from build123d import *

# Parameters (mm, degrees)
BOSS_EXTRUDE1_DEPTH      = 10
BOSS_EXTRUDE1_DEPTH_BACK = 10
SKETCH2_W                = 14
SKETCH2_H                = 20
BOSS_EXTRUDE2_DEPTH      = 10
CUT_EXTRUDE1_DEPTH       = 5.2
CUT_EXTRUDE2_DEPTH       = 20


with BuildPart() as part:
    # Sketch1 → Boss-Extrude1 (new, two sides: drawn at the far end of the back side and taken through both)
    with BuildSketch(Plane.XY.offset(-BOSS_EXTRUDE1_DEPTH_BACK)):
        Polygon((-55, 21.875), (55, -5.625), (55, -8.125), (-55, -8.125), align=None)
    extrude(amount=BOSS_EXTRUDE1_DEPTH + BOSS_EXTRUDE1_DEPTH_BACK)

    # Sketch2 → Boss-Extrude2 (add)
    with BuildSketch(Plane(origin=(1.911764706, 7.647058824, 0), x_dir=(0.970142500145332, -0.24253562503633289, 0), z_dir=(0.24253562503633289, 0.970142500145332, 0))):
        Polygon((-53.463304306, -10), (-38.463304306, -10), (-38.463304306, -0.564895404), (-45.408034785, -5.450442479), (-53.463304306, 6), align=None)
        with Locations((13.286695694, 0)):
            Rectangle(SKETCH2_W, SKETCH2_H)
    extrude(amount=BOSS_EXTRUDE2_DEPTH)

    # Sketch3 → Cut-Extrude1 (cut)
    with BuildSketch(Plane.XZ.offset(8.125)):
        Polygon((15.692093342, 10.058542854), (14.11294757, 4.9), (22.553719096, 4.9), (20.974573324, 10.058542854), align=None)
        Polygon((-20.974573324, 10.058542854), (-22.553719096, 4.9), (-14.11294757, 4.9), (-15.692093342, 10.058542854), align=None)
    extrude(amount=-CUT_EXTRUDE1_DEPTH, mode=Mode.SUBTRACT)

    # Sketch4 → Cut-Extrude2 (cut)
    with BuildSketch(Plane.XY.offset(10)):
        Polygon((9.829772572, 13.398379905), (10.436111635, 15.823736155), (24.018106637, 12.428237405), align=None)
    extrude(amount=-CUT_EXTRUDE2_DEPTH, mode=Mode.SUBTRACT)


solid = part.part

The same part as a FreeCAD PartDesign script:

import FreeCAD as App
import Part
import Sketcher

V = App.Vector
Q = App.Units.Quantity


def add_polygon(sketch, points):
    """Adds a closed chain of lines whose ends are joined by coincident constraints."""
    first, n = sketch.GeometryCount, len(points)
    for a, b in zip(points, points[1:] + points[:1]):
        sketch.addGeometry(Part.LineSegment(App.Vector(*a, 0), App.Vector(*b, 0)), False)
    for i in range(n):
        sketch.addConstraint(Sketcher.Constraint("Coincident", first + i, 2, first + (i + 1) % n, 1))

doc = App.newDocument("Part")
body = doc.addObject("PartDesign::Body", "Body")

sketch1 = body.newObject("Sketcher::SketchObject", "Sketch")
sketch1.AttachmentSupport = (doc.getObject("XY_Plane"), [""])
sketch1.MapMode = "FlatFace"
add_polygon(sketch1, [(55, -5.6), (-55, 21.9), (-55, -8.1), (55, -8.1)])
sketch1.addConstraint(Sketcher.Constraint("Vertical", 1))
sketch1.addConstraint(Sketcher.Constraint("Horizontal", 2))
sketch1.addConstraint(Sketcher.Constraint("Vertical", 3))
sketch1.addConstraint(Sketcher.Constraint("DistanceX", 2, 1, 2, 2, Q("110 mm")))
sketch1.addConstraint(Sketcher.Constraint("DistanceY", 1, 2, 1, 1, Q("30 mm")))
sketch1.addConstraint(Sketcher.Constraint("DistanceY", 3, 1, 3, 2, Q("2.5 mm")))
sketch1.addConstraint(Sketcher.Constraint("DistanceX", 0, 2, -1, 1, Q("55 mm")))
sketch1.addConstraint(Sketcher.Constraint("DistanceY", -1, 1, 0, 2, Q("21.875 mm")))
pad1 = body.newObject("PartDesign::Pad", "Pad")
pad1.Profile = sketch1
pad1.Type = "TwoLengths"
pad1.Length = 10
pad1.Length2 = 10

sketch2 = body.newObject("Sketcher::SketchObject", "Sketch001")
sketch2.Placement = App.Placement(V(1.911765, 7.647059, 0), App.Rotation(V(0.9701425, -0.242535625, 0), V(0, 0, -1), V(0.242535625, 0.9701425, 0), "ZXY"))
add_polygon(sketch2, [(-53, -10), (-38, -10), (-38, -1), (-45, -5), (-53, 6)])
add_polygon(sketch2, [(6, 10), (6, -10), (20, -10), (20, 10)])
sketch2.addConstraint(Sketcher.Constraint("Horizontal", 0))
sketch2.addConstraint(Sketcher.Constraint("Vertical", 1))
sketch2.addConstraint(Sketcher.Constraint("Vertical", 4))
sketch2.addConstraint(Sketcher.Constraint("Vertical", 5))
sketch2.addConstraint(Sketcher.Constraint("Horizontal", 6))
sketch2.addConstraint(Sketcher.Constraint("Vertical", 7))
sketch2.addConstraint(Sketcher.Constraint("Horizontal", 8))
sketch2.addConstraint(Sketcher.Constraint("Perpendicular", 2, 3))
sketch2.addConstraint(Sketcher.Constraint("Horizontal", 4, 2, 5, 2))
sketch2.addConstraint(Sketcher.Constraint("DistanceX", 0, 1, 0, 2, Q("15 mm")))
sketch2.addConstraint(Sketcher.Constraint("DistanceX", 6, 1, 6, 2, Q("14 mm")))
sketch2.addConstraint(Sketcher.Constraint("DistanceY", 4, 2, 4, 1, Q("16 mm")))
sketch2.addConstraint(Sketcher.Constraint("DistanceY", 5, 2, 5, 1, Q("20 mm")))
sketch2.addConstraint(Sketcher.Constraint("Distance", 3, Q("14 mm")))
sketch2.addConstraint(Sketcher.Constraint("DistanceY", 0, 2, -1, 1, Q("10 mm")))
sketch2.addConstraint(Sketcher.Constraint("DistanceX", 0, 2, 5, 2, Q("44.75 mm")))
sketch2.addConstraint(Sketcher.Constraint("DistanceY", 1, 1, 1, 2, Q("9.435105 mm")))
sketch2.addConstraint(Sketcher.Constraint("DistanceX", 0, 2, -1, 1, Q("38.463304 mm")))
pad2 = body.newObject("PartDesign::Pad", "Pad001")
pad2.Profile = sketch2
pad2.Length = 10

sketch3 = body.newObject("Sketcher::SketchObject", "Sketch002")
sketch3.AttachmentSupport = (doc.getObject("XZ_Plane"), [""])
sketch3.MapMode = "FlatFace"
sketch3.AttachmentOffset = App.Placement(V(0, 0, 8.125), App.Rotation())
add_polygon(sketch3, [(16, 10), (14, 5), (23, 5), (21, 10)])
add_polygon(sketch3, [(-21, 10), (-23, 5), (-14, 5), (-16, 10)])
sketch3.addConstraint(Sketcher.Constraint("Horizontal", 1))
sketch3.addConstraint(Sketcher.Constraint("Horizontal", 3))
sketch3.addConstraint(Sketcher.Constraint("Horizontal", 5))
sketch3.addConstraint(Sketcher.Constraint("Horizontal", 7))
sketch3.addConstraint(Sketcher.Constraint("Symmetric", 1, 2, 4, 2, -2))
sketch3.addConstraint(Sketcher.Constraint("Symmetric", 3, 2, 6, 2, -2))
sketch3.addConstraint(Sketcher.Constraint("Parallel", 0, 4))
sketch3.addConstraint(Sketcher.Constraint("Parallel", 2, 6))
sketch3.addConstraint(Sketcher.Constraint("Equal", 1, 5))
sketch3.addConstraint(Sketcher.Constraint("DistanceY", -1, 1, 0, 2, Q("4.9 mm")))
sketch3.addConstraint(Sketcher.Constraint("DistanceX", 1, 1, 1, 2, Q("8.440772 mm")))
sketch3.addConstraint(Sketcher.Constraint("DistanceX", 3, 2, 3, 1, Q("5.28248 mm")))
sketch3.addConstraint(Sketcher.Constraint("DistanceX", -1, 1, 1, 2, Q("22.553719 mm")))
sketch3.addConstraint(Sketcher.Constraint("Distance", 0, Q("5.394837 mm")))
pocket1 = body.newObject("PartDesign::Pocket", "Pocket")
pocket1.Profile = sketch3
pocket1.Length = 5.2

sketch4 = body.newObject("Sketcher::SketchObject", "Sketch003")
sketch4.AttachmentSupport = (doc.getObject("XY_Plane"), [""])
sketch4.MapMode = "FlatFace"
sketch4.AttachmentOffset = App.Placement(V(0, 0, 10), App.Rotation())
add_polygon(sketch4, [(10.4, 15.8), (9.8, 13.4), (24, 12.4)])
sketch4.addConstraint(Sketcher.Constraint("Perpendicular", 0, 2))
sketch4.addConstraint(Sketcher.Constraint("Distance", 2, Q("14 mm")))
sketch4.addConstraint(Sketcher.Constraint("Distance", 0, Q("2.5 mm")))
sketch4.addConstraint(Sketcher.Constraint("DistanceY", 1, 2, 2, 2, Q("3.395499 mm")))
sketch4.addConstraint(Sketcher.Constraint("DistanceY", -1, 1, 0, 2, Q("13.39838 mm")))
sketch4.addConstraint(Sketcher.Constraint("DistanceX", -1, 1, 2, 2, Q("10.436112 mm")))
pocket2 = body.newObject("PartDesign::Pocket", "Pocket001")
pocket2.Profile = sketch4
pocket2.Length = 20

doc.recompute()
